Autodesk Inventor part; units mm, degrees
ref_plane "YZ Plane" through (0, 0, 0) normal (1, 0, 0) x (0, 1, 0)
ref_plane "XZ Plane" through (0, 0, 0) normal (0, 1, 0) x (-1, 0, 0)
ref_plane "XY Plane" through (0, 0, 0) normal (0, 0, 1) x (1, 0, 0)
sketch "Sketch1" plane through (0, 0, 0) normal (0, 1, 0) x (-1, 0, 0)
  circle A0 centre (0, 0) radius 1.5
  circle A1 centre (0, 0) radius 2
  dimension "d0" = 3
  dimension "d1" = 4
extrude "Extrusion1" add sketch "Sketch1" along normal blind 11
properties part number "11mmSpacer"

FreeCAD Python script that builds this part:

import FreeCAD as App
import Part
import Sketcher

doc = App.newDocument("Part")
body = doc.addObject("PartDesign::Body", "Body")

sketch1 = doc.addObject("Sketcher::SketchObject", "Sketch")
body.addObject(sketch1)
sketch1.AttachmentSupport = (doc.XZ_Plane, [""])
sketch1.MapMode = "FlatFace"
sketch1.addGeometry(Part.Circle(App.Vector(0, 0, 0), App.Vector(0, 0, 1), 2), False)
sketch1.addGeometry(Part.Circle(App.Vector(0, 0, 0), App.Vector(0, 0, 1), 1.5), False)
sketch1.addConstraint(Sketcher.Constraint("Coincident", 0, 3, -1, 1))
sketch1.addConstraint(Sketcher.Constraint("Coincident", 1, 3, -1, 1))
sketch1.addConstraint(Sketcher.Constraint("Diameter", 0, 4.0))
sketch1.addConstraint(Sketcher.Constraint("Diameter", 1, 3.0))
pad1 = doc.addObject("PartDesign::Pad", "Pad")
body.addObject(pad1)
pad1.Profile = sketch1
pad1.Length = 11
pad1.Reversed = True

doc.recompute()
